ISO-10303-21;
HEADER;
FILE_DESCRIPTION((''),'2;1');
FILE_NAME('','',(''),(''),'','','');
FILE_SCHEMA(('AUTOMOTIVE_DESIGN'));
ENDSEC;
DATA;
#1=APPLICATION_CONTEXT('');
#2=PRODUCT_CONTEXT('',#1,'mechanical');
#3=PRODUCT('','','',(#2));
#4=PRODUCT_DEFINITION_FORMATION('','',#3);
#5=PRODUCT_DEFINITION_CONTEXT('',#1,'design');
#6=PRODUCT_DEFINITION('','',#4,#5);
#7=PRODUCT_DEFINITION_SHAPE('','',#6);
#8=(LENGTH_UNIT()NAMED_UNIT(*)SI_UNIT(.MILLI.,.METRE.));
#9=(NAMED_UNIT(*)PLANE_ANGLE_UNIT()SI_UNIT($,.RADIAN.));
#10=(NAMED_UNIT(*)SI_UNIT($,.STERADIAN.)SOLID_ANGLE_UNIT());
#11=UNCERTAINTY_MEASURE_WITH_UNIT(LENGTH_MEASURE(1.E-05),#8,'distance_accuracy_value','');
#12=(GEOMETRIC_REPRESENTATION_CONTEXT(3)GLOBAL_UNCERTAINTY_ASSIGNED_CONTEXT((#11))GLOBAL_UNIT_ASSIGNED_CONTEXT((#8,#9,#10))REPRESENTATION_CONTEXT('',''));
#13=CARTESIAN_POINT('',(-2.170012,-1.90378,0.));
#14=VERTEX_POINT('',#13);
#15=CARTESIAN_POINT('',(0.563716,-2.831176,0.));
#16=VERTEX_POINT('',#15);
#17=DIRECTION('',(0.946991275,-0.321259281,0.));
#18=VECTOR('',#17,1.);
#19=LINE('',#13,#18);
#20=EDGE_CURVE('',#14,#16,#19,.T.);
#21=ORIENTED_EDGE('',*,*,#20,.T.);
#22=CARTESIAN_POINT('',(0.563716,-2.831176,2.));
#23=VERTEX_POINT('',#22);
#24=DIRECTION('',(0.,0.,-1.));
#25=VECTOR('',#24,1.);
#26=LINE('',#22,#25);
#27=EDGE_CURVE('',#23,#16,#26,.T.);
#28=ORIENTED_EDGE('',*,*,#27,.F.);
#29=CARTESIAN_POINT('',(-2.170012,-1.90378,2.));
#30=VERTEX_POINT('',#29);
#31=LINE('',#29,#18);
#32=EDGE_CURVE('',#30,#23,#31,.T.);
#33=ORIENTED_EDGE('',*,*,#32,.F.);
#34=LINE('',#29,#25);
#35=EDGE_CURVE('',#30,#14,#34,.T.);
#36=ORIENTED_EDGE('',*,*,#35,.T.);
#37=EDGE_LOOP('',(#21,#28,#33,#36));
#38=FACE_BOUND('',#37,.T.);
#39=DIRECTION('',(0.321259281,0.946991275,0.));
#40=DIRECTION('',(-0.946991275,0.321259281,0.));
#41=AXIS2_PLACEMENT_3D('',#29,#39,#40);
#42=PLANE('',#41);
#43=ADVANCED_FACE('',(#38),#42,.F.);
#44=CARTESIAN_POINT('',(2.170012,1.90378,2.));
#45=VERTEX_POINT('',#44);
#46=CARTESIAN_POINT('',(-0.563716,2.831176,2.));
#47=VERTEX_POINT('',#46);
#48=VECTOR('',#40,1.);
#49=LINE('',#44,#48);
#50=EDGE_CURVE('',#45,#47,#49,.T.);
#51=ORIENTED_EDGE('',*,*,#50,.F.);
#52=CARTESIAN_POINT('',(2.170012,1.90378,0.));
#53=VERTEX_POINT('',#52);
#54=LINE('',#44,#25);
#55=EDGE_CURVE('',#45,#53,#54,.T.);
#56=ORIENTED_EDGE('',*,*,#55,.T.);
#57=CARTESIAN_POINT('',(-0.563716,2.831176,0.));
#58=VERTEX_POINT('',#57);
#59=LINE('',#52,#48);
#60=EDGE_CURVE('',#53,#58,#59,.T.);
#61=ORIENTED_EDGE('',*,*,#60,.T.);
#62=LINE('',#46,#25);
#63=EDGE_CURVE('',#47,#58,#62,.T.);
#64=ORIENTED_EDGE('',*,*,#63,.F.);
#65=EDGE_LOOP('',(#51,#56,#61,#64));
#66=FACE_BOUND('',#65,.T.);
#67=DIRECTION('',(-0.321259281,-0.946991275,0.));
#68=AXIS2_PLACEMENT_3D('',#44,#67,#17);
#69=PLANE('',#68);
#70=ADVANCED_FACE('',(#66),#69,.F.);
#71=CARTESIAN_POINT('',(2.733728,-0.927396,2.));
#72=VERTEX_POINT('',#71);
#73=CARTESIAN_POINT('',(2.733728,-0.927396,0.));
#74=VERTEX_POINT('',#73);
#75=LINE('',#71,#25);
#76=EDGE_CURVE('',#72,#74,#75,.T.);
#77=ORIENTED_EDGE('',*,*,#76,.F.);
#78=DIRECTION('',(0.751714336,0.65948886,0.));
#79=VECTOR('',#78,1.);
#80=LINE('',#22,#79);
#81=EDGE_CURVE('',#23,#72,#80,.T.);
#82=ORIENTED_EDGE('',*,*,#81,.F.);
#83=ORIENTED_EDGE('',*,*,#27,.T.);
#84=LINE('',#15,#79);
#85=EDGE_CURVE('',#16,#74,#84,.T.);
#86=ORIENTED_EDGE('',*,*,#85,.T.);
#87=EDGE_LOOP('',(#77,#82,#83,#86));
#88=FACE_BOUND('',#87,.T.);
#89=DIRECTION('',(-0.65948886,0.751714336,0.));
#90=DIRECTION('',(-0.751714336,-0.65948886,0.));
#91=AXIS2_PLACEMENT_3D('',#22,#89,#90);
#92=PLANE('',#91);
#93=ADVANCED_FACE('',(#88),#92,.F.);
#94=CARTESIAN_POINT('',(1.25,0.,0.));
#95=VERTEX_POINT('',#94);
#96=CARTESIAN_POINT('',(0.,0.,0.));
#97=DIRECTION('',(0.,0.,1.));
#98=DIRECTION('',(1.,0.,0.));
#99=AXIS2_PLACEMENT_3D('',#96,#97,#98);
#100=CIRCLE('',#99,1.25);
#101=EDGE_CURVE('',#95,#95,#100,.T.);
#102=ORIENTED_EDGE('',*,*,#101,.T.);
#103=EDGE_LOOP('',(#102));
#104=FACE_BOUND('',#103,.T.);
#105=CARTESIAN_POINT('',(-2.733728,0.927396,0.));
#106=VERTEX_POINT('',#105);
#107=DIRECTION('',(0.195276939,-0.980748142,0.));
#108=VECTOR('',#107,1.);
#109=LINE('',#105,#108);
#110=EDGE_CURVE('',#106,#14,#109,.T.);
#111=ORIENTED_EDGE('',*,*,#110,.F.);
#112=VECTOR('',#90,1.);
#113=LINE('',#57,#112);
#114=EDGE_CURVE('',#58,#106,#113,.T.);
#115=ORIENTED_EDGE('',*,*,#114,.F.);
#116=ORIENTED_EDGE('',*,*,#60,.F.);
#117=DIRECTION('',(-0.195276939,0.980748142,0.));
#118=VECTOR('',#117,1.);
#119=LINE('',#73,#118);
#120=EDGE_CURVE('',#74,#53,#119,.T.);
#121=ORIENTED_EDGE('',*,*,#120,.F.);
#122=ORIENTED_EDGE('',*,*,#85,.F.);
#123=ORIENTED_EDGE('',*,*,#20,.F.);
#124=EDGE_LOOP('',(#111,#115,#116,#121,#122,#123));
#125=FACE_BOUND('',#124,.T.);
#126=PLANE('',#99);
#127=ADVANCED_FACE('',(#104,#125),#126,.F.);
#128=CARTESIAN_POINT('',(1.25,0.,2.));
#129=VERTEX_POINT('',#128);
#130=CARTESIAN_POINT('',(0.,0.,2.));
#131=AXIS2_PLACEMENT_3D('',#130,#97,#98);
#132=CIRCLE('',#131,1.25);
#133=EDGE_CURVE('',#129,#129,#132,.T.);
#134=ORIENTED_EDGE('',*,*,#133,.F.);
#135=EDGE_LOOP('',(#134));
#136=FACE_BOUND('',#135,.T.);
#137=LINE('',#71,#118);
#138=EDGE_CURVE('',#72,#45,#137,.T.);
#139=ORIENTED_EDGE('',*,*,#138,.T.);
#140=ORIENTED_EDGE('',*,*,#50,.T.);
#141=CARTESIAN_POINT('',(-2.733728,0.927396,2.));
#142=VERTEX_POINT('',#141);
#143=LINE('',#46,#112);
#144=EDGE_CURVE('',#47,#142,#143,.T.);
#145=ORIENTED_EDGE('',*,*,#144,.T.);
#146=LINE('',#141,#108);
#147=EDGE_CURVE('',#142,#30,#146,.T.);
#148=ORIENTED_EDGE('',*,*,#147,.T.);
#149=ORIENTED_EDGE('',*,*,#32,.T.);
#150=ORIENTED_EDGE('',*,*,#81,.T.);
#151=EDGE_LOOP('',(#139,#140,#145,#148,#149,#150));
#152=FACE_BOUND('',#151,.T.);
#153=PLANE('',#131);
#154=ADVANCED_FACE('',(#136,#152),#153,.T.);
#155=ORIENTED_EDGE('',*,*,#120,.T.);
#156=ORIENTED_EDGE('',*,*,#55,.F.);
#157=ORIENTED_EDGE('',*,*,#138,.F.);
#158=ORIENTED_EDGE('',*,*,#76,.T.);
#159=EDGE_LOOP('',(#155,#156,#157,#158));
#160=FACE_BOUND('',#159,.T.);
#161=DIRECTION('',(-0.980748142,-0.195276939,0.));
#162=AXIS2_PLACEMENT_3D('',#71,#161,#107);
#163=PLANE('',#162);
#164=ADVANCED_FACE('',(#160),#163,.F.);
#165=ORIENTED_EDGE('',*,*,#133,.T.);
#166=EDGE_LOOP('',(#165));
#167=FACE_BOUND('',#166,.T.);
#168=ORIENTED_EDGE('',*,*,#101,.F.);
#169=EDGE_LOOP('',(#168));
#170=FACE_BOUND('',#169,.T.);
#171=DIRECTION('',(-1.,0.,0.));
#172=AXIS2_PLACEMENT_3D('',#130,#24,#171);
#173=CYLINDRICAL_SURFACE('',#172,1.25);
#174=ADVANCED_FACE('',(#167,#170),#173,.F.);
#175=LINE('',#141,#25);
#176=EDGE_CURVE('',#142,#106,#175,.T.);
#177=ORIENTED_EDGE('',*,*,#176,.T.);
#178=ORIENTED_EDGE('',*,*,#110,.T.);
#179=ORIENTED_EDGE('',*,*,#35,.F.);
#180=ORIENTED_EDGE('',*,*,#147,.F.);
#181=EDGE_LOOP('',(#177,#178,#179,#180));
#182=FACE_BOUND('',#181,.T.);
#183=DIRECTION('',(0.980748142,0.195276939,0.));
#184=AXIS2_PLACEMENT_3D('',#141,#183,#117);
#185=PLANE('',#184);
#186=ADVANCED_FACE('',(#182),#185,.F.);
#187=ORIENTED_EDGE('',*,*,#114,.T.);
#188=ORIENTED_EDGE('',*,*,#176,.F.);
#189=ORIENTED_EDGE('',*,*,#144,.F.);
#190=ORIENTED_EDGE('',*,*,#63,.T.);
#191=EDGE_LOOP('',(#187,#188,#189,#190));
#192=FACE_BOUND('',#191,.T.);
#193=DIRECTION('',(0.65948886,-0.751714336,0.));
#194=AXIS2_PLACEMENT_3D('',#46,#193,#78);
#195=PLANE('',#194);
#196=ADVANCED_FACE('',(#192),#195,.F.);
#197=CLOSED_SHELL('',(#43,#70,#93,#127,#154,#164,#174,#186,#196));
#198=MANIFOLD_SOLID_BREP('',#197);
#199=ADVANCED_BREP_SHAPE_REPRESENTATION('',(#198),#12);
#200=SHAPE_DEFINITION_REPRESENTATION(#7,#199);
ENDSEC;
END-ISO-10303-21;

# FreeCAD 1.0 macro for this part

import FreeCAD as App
import Part
import Sketcher

V = App.Vector

doc = App.newDocument("Part")
body = doc.addObject("PartDesign::Body", "Body")

# Sketch on XY plane
sketch1 = body.newObject("Sketcher::SketchObject", "Sketch")
sketch1.AttachmentSupport = (doc.getObject("XY_Plane"), [""])
sketch1.MapMode = "FlatFace"
sketch1.addGeometry([
    Part.LineSegment(V(2.7, -0.9, 0), V(2.2, 1.9, 0)),  # 0
    Part.LineSegment(V(2.2, 1.9, 0), V(-0.6, 2.8, 0)),  # 1
    Part.LineSegment(V(-0.6, 2.8, 0), V(-2.7, 0.9, 0)),  # 2
    Part.LineSegment(V(-2.7, 0.9, 0), V(-2.2, -1.9, 0)),  # 3
    Part.LineSegment(V(-2.2, -1.9, 0), V(0.6, -2.8, 0)),  # 4
    Part.LineSegment(V(0.6, -2.8, 0), V(2.7, -0.9, 0)),  # 5
    Part.Circle(V(0, 0, 0), V(0, 0, 1), 1.2),  # 6
], False)
sketch1.addConstraint([
    Sketcher.Constraint("Coincident", 0, 2, 1, 1),
    Sketcher.Constraint("Coincident", 1, 2, 2, 1),
    Sketcher.Constraint("Coincident", 2, 2, 3, 1),
    Sketcher.Constraint("Coincident", 3, 2, 4, 1),
    Sketcher.Constraint("Coincident", 4, 2, 5, 1),
    Sketcher.Constraint("Coincident", 5, 2, 0, 1),
    Sketcher.Constraint("Coincident", 6, 3, -1, 1),
    Sketcher.Constraint("Symmetric", 0, 2, 3, 2, -1, 1),
    Sketcher.Constraint("Symmetric", 1, 2, 4, 2, -1, 1),
    Sketcher.Constraint("Symmetric", 2, 2, 5, 2, -1, 1),
    Sketcher.Constraint("Equal", 0, 1),
    Sketcher.Constraint("Equal", 1, 2),
    Sketcher.Constraint("Diameter", 6, 2.5),
    Sketcher.Constraint("Distance", 0, 2.886751),
    Sketcher.Constraint("DistanceY", -1, 1, 0, 2, 1.90378),
    Sketcher.Constraint("DistanceX", 2, 2, -1, 1, 2.733728),
    Sketcher.Constraint("DistanceX", 1, 2, 0, 2, 2.733728),
])
pad1 = body.newObject("PartDesign::Pad", "Pad")
pad1.Profile = sketch1
pad1.Length = 2

doc.recompute()
